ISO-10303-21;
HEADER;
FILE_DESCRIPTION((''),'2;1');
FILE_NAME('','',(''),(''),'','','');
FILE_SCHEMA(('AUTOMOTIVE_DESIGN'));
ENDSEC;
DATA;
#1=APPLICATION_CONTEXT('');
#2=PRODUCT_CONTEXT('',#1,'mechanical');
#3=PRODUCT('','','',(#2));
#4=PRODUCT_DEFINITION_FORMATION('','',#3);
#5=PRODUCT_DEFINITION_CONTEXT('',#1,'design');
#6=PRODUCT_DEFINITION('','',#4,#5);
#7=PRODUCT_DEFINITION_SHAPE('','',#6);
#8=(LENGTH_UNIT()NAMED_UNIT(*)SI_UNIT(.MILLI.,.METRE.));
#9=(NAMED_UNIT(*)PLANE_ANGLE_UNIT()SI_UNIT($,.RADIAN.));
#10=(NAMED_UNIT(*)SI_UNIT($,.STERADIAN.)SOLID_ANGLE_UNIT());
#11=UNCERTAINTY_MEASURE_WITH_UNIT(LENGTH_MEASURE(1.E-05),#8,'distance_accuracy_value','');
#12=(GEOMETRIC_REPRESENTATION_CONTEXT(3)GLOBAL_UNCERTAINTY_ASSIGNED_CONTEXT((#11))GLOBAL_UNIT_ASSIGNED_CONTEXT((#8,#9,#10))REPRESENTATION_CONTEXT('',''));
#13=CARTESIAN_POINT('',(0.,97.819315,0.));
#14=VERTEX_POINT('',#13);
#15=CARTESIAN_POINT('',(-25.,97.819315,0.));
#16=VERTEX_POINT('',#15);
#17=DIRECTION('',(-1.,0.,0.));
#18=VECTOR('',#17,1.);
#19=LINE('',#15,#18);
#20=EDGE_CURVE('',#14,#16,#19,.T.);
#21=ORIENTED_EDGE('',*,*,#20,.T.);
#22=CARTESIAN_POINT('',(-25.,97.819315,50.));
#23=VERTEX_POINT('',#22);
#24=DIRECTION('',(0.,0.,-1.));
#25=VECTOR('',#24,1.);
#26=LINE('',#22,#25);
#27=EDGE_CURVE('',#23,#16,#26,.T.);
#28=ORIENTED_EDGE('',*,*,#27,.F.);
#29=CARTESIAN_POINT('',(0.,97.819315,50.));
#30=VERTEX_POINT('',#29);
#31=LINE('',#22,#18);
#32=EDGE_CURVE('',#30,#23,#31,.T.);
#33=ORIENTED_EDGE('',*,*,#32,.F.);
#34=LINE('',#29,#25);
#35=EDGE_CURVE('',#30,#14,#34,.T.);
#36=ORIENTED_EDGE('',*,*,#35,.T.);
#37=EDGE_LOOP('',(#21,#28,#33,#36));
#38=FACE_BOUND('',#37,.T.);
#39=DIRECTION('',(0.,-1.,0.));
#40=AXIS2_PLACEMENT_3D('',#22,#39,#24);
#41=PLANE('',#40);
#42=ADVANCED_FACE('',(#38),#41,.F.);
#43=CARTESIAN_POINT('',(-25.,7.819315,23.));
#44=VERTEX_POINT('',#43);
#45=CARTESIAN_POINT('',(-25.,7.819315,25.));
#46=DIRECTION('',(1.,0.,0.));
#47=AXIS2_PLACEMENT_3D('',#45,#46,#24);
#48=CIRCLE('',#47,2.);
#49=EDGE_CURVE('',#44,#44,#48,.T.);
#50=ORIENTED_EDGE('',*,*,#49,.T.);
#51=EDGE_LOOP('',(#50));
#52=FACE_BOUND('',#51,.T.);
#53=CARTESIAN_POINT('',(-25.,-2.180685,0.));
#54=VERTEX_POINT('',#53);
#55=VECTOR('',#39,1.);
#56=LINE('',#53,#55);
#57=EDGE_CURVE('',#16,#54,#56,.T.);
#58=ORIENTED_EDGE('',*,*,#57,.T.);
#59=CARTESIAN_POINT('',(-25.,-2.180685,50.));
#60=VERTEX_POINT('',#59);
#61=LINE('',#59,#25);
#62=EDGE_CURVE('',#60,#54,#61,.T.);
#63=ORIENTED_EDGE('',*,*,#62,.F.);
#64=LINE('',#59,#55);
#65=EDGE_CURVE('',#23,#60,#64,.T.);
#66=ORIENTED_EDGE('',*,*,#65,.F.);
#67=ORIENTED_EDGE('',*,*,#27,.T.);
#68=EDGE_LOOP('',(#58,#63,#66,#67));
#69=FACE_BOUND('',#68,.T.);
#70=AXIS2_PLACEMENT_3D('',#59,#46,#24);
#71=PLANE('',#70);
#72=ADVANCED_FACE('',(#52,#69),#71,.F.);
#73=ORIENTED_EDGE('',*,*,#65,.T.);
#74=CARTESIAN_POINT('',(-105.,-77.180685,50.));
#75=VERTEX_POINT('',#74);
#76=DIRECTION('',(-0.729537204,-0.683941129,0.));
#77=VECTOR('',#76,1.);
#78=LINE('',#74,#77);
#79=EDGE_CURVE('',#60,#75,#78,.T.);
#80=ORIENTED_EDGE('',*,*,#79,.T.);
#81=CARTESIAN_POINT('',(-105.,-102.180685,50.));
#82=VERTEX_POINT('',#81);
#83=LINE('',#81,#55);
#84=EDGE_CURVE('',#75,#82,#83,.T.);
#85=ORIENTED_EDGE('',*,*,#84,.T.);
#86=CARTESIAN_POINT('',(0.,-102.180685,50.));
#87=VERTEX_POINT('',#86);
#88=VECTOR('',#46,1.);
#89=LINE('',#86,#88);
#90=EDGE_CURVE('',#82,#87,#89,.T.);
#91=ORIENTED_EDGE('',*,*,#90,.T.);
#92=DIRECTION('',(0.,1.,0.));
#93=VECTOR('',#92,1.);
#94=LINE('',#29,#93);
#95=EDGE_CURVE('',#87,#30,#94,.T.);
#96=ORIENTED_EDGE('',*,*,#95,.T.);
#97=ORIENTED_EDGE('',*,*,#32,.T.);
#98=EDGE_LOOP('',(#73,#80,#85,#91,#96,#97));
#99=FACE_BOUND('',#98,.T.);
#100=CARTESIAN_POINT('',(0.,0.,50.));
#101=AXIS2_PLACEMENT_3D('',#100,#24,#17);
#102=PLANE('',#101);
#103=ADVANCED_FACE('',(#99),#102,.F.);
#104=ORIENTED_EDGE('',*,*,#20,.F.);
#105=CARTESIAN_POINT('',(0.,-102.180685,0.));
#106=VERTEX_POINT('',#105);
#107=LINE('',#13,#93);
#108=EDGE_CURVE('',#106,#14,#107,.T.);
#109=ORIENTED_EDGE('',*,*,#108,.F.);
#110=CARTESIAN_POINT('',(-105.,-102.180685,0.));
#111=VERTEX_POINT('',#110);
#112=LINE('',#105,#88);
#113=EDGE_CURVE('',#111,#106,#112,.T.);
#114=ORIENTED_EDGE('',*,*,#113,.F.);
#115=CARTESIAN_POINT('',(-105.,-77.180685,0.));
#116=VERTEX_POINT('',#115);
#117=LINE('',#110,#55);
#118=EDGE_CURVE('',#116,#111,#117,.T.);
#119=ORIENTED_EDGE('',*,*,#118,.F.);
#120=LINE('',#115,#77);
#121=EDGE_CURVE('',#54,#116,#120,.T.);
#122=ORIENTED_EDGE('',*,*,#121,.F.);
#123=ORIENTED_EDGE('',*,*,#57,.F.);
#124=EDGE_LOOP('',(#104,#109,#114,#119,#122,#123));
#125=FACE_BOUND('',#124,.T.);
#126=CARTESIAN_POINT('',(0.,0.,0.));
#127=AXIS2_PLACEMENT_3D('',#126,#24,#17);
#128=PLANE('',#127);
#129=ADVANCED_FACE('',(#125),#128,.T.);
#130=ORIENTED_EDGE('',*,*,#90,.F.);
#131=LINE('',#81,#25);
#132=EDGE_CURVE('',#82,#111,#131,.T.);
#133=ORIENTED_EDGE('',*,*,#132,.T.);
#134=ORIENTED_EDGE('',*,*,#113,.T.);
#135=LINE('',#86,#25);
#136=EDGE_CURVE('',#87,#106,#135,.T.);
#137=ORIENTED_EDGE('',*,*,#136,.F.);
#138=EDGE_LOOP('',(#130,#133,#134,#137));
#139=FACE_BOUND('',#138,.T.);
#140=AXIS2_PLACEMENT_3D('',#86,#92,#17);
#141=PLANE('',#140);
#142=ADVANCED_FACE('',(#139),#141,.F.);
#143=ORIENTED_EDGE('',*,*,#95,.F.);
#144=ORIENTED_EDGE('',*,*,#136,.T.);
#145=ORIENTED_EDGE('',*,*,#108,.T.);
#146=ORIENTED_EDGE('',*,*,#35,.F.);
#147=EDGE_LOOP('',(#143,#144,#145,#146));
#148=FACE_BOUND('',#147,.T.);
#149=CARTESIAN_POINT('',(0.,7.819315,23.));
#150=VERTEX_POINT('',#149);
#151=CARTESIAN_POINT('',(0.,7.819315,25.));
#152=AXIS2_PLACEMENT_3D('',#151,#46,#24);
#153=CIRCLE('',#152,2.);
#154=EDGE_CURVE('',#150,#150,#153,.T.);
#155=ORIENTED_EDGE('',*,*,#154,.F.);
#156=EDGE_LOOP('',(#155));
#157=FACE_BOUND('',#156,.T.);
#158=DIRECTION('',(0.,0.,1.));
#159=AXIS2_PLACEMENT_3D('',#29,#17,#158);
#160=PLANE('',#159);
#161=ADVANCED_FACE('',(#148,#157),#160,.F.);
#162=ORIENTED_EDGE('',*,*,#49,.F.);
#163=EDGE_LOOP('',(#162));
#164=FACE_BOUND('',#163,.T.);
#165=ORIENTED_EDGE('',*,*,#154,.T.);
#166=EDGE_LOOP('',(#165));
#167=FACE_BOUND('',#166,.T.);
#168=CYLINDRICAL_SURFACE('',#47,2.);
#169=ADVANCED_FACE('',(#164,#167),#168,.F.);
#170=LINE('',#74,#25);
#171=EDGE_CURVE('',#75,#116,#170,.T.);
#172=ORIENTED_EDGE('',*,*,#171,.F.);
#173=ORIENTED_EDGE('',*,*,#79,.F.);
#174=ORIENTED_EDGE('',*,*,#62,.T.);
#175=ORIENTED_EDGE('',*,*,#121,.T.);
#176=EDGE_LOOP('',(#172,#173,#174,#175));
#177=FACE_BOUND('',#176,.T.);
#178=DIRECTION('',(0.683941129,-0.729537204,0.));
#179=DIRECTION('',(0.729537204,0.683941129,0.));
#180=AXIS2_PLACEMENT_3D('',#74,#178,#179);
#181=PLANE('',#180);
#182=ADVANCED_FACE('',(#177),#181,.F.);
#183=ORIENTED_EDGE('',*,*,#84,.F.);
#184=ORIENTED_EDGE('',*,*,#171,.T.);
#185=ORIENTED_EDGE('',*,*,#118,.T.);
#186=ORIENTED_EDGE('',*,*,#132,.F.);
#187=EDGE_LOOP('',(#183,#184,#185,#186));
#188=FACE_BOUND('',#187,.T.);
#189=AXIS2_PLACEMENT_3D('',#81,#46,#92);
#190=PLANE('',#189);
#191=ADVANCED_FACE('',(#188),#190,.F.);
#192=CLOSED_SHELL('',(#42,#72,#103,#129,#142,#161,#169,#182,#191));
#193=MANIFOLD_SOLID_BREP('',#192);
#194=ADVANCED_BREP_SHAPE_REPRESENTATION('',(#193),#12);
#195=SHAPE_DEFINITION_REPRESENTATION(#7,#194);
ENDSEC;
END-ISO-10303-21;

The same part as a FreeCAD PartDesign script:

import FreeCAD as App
import Part
import Sketcher
from FreeCAD import Vector
Q = App.Units.Quantity

doc = App.newDocument("Part")
params = doc.addObject("Spreadsheet::Sheet", "Params")
for row, (alias, value) in enumerate([
    ("sketch1_width", "25 mm"),
    ("sketch1_width2", "105 mm"),
    ("sketch1_height", "200 mm"),
    ("sketch1_height2", "100 mm"),
    ("pad1_length", "50 mm"),
    ("sketch2_diameter", "4 mm"),
    ("pocket1_length", "25 mm"),
], start=1):
    params.set(f"A{row}", alias)
    params.set(f"B{row}", "=" + value)
    params.setAlias(f"B{row}", alias)

body = doc.addObject("PartDesign::Body", "Body")

sketch1 = body.newObject("Sketcher::SketchObject", "Sketch")
sketch1.AttachmentSupport = (doc.getObject("XY_Plane"), [""])
sketch1.MapMode = "FlatFace"
sketch1.addGeometry([
    Part.LineSegment(Vector(0, -102, 0), Vector(0, 98, 0)),
    Part.LineSegment(Vector(0, 98, 0), Vector(-25, 98, 0)),
    Part.LineSegment(Vector(-25, 98, 0), Vector(-25, -2, 0)),
    Part.LineSegment(Vector(-25, -2, 0), Vector(-105, -77, 0)),
    Part.LineSegment(Vector(-105, -77, 0), Vector(-105, -102, 0)),
    Part.LineSegment(Vector(-105, -102, 0), Vector(0, -102, 0)),
], False)
sketch1.addConstraint([
    Sketcher.Constraint("Coincident", 0, 2, 1, 1),
    Sketcher.Constraint("Coincident", 1, 2, 2, 1),
    Sketcher.Constraint("Coincident", 2, 2, 3, 1),
    Sketcher.Constraint("Coincident", 3, 2, 4, 1),
    Sketcher.Constraint("Coincident", 4, 2, 5, 1),
    Sketcher.Constraint("Coincident", 5, 2, 0, 1),
    Sketcher.Constraint("Vertical", 0),
    Sketcher.Constraint("Horizontal", 1),
    Sketcher.Constraint("Vertical", 2),
    Sketcher.Constraint("Vertical", 4),
    Sketcher.Constraint("Horizontal", 5),
    Sketcher.Constraint("PointOnObject", 0, 2, -2),
    Sketcher.Constraint("Equal", 1, 4),
    Sketcher.Constraint("DistanceX", 1, 2, 1, 1, Q("25 mm")),
    Sketcher.Constraint("DistanceX", 5, 1, 5, 2, Q("105 mm")),
    Sketcher.Constraint("DistanceY", 0, 1, 0, 2, Q("200 mm")),
    Sketcher.Constraint("DistanceY", 2, 2, 2, 1, Q("100 mm")),
    Sketcher.Constraint("DistanceY", -1, 1, 0, 2, Q("97.819315 mm")),
])
sketch1.setExpression("Constraints[13]", "Params.sketch1_width")
sketch1.setExpression("Constraints[14]", "Params.sketch1_width2")
sketch1.setExpression("Constraints[15]", "Params.sketch1_height")
sketch1.setExpression("Constraints[16]", "Params.sketch1_height2")
pad1 = body.newObject("PartDesign::Pad", "Pad")
pad1.Profile = sketch1
pad1.setExpression("Length", "Params.pad1_length")

sketch2 = body.newObject("Sketcher::SketchObject", "Sketch001")
sketch2.AttachmentSupport = (doc.getObject("YZ_Plane"), [""])
sketch2.MapMode = "FlatFace"
sketch2.addGeometry(Part.Circle(Vector(7.8, 25, 0), Vector(0, 0, 1), 2), False)
sketch2.addConstraint([
    Sketcher.Constraint("Diameter", 0, Q("4 mm")),
    Sketcher.Constraint("DistanceY", -1, 1, 0, 3, Q("25 mm")),
    Sketcher.Constraint("DistanceX", -1, 1, 0, 3, Q("7.819315 mm")),
])
sketch2.setExpression("Constraints[0]", "Params.sketch2_diameter")
pocket1 = body.newObject("PartDesign::Pocket", "Pocket")
pocket1.Profile = sketch2
pocket1.setExpression("Length", "Params.pocket1_length")

doc.recompute()
